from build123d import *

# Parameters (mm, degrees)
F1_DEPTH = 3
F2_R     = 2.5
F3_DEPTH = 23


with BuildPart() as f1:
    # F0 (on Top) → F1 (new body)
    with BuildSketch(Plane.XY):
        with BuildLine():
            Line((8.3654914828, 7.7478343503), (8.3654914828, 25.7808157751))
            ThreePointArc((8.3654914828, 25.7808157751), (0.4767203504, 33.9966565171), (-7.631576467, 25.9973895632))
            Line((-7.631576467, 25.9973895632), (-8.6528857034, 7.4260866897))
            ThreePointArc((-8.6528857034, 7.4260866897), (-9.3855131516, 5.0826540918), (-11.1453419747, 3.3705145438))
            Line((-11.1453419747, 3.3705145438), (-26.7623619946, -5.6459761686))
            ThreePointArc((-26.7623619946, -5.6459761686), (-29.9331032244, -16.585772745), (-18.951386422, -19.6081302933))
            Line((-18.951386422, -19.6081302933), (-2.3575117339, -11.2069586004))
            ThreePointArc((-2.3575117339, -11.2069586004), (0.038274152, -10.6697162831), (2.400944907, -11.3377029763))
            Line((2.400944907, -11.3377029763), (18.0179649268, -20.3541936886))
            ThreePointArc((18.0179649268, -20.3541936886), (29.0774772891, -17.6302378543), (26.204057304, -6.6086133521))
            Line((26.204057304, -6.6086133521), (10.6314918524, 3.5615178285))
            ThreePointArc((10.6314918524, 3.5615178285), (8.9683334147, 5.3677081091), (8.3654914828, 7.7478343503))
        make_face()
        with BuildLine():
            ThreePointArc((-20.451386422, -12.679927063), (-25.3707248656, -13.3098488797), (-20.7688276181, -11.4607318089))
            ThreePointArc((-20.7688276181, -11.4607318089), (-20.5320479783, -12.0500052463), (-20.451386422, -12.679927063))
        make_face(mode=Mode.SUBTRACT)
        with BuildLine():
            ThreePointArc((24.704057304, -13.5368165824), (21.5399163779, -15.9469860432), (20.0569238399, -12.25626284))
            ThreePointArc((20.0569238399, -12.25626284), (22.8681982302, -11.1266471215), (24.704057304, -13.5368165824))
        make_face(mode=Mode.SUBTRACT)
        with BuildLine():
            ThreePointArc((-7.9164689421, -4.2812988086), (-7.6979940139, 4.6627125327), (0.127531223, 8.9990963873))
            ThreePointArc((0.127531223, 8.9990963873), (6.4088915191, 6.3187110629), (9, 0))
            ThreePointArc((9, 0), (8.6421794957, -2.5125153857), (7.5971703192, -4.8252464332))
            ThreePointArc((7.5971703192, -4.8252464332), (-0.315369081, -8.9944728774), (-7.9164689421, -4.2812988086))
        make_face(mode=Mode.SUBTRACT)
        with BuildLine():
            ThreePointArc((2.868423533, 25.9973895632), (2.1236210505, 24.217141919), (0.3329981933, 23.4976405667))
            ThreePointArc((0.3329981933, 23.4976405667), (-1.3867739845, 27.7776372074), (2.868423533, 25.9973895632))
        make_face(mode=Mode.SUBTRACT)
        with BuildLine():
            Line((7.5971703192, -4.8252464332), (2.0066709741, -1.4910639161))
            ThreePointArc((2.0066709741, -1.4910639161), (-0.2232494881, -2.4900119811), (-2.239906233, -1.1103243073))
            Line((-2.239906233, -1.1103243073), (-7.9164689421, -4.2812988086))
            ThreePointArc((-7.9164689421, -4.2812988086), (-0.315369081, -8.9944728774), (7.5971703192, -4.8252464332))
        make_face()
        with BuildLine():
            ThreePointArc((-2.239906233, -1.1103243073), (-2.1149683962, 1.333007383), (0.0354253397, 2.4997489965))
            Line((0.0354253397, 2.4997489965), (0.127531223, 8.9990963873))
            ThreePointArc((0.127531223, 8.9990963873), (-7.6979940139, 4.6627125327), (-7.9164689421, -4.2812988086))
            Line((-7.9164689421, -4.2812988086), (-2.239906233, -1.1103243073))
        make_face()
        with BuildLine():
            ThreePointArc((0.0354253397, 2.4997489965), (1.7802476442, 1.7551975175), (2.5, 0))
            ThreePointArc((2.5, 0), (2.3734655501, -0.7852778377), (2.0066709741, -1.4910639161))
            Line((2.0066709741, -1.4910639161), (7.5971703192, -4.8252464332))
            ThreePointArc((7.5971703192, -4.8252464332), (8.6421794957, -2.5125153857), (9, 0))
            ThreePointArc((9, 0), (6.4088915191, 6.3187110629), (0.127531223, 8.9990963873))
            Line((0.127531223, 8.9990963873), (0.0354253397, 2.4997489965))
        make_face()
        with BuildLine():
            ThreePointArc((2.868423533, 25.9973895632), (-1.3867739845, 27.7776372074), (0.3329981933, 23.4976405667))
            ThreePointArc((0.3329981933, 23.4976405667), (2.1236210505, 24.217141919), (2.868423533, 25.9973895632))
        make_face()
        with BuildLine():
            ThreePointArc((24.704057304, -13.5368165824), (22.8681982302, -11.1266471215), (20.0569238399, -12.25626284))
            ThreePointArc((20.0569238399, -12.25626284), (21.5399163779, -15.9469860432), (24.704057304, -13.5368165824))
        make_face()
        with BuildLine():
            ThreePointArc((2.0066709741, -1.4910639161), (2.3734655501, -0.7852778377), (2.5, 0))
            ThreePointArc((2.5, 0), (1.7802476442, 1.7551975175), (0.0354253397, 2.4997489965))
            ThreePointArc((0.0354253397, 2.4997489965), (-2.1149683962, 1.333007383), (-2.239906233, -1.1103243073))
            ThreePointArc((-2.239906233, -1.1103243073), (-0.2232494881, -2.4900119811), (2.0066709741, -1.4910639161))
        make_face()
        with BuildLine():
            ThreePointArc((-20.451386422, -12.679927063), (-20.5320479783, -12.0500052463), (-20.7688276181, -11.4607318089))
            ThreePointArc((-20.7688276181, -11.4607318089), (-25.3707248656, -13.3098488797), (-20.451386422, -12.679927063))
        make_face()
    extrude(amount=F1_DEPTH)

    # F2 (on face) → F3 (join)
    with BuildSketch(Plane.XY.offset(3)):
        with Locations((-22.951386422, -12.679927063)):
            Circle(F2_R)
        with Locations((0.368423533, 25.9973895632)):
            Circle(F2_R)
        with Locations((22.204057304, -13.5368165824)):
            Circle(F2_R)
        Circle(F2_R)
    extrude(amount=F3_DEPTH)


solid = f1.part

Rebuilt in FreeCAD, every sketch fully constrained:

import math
import FreeCAD as App
import Part
import Sketcher
from FreeCAD import Vector
Q = App.Units.Quantity

doc = App.newDocument("Part")
body = doc.addObject("PartDesign::Body", "Body")

# Sketch on XY plane
sketch1 = doc.addObject("Sketcher::SketchObject", "Sketch")
body.addObject(sketch1)
sketch1.AttachmentSupport = (doc.XY_Plane, [""])
sketch1.MapMode = "FlatFace"
sketch1.addGeometry([
    Part.LineSegment(Vector(8.365491, 7.747834, 0), Vector(8.365491, 25.780816, 0)),  # 0
    Part.ArcOfCircle(Part.Circle(Vector(0.368424, 25.99739, 0), Vector(0, 0, 1), 8), math.radians(-1.551285), math.radians(180)),  # 1
    Part.LineSegment(Vector(-7.631576, 25.99739, 0), Vector(-8.652886, 7.426087, 0)),  # 2
    Part.ArcOfCircle(Part.Circle(Vector(-13.645342, 7.700642, 0), Vector(0, 0, 1), 5), math.radians(-60), math.radians(-3.14775)),  # 3
    Part.LineSegment(Vector(-11.145342, 3.370515, 0), Vector(-26.762362, -5.645976, 0)),  # 4
    Part.ArcOfCircle(Part.Circle(Vector(-22.951386, -12.679927, 0), Vector(0, 0, 1), 8), math.radians(118.448715), math.radians(300)),  # 5
    Part.LineSegment(Vector(-18.951386, -19.60813, 0), Vector(-2.357512, -11.206959, 0)),  # 6
    Part.ArcOfCircle(Part.Circle(Vector(-0.099055, -15.66783, 0), Vector(0, 0, 1), 5), math.radians(60), math.radians(116.85225)),  # 7
    Part.LineSegment(Vector(2.400945, -11.337703, 0), Vector(18.017965, -20.354194, 0)),  # 8
    Part.ArcOfCircle(Part.Circle(Vector(22.204057, -13.536817, 0), Vector(0, 0, 1), 8), math.radians(-121.551285), math.radians(60)),  # 9
    Part.LineSegment(Vector(26.204057, -6.608613, 0), Vector(10.631492, 3.561518, 0)),  # 10
    Part.ArcOfCircle(Part.Circle(Vector(13.365491, 7.747834, 0), Vector(0, 0, 1), 5), math.radians(180), math.radians(236.85225)),  # 11
], False)
sketch1.addConstraint([
    Sketcher.Constraint("Coincident", 0, 2, 1, 1),
    Sketcher.Constraint("Coincident", 1, 2, 2, 1),
    Sketcher.Constraint("Tangent", 2, 2, 3, 2),
    Sketcher.Constraint("Tangent", 3, 1, 4, 1),
    Sketcher.Constraint("Coincident", 4, 2, 5, 1),
    Sketcher.Constraint("Coincident", 5, 2, 6, 1),
    Sketcher.Constraint("Tangent", 6, 2, 7, 2),
    Sketcher.Constraint("Tangent", 7, 1, 8, 1),
    Sketcher.Constraint("Coincident", 8, 2, 9, 1),
    Sketcher.Constraint("Coincident", 9, 2, 10, 1),
    Sketcher.Constraint("Tangent", 10, 2, 11, 2),
    Sketcher.Constraint("Tangent", 11, 1, 0, 1),
    Sketcher.Constraint("Vertical", 0),
    Sketcher.Constraint("Equal", 1, 5),
    Sketcher.Constraint("Equal", 3, 7),
    Sketcher.Constraint("Equal", 5, 9),
    Sketcher.Constraint("Equal", 7, 11),
    Sketcher.Constraint("Equal", 2, 6),
    Sketcher.Constraint("Equal", 4, 8),
    Sketcher.Constraint("Equal", 6, 10),
    Sketcher.Constraint("Radius", 1, Q("8 mm")),
    Sketcher.Constraint("Radius", 3, Q("5 mm")),
    Sketcher.Constraint("Angle", 4, Q("-150 deg")),
    Sketcher.Constraint("Angle", 8, Q("-30 deg")),
    Sketcher.Constraint("DistanceX", 5, 3, 5, 2, Q("4 mm")),
    Sketcher.Constraint("DistanceX", 9, 3, 9, 2, Q("4 mm")),
    Sketcher.Constraint("DistanceX", 10, 2, 11, 3, Q("2.734 mm")),
    Sketcher.Constraint("DistanceY", 0, 1, 0, 2, Q("18.032981 mm")),
    Sketcher.Constraint("DistanceX", 3, 3, 9, 3, Q("35.849399 mm")),
    Sketcher.Constraint("DistanceY", 5, 2, 7, 3, Q("3.9403 mm")),
    Sketcher.Constraint("Distance", 4, Q("18.032981 mm")),
    Sketcher.Constraint("DistanceY", -1, 1, 1, 3, Q("25.99739 mm")),
    Sketcher.Constraint("DistanceX", 3, 3, -1, 1, Q("13.645342 mm")),
    Sketcher.Constraint("DistanceY", -1, 1, 3, 3, Q("7.700642 mm")),
    Sketcher.Constraint("DistanceY", 7, 3, -1, 1, Q("15.66783 mm")),
    Sketcher.Constraint("DistanceX", -1, 1, 11, 3, Q("13.365491 mm")),
])
pad1 = doc.addObject("PartDesign::Pad", "Pad")
body.addObject(pad1)
pad1.Profile = sketch1
pad1.Length = 3

# Sketch on XY plane
sketch2 = doc.addObject("Sketcher::SketchObject", "Sketch001")
body.addObject(sketch2)
sketch2.AttachmentSupport = (doc.XY_Plane, [""])
sketch2.MapMode = "FlatFace"
sketch2.AttachmentOffset = App.Placement(Vector(0, 0, 3), App.Rotation())
sketch2.addGeometry([
    Part.Circle(Vector(-22.951386, -12.679927, 0), Vector(0, 0, 1), 2.5),
    Part.Circle(Vector(0.368424, 25.99739, 0), Vector(0, 0, 1), 2.5),
    Part.Circle(Vector(22.204057, -13.536817, 0), Vector(0, 0, 1), 2.5),
    Part.Circle(Vector(0, 0, 0), Vector(0, 0, 1), 2.5),
], False)
sketch2.addConstraint([
    Sketcher.Constraint("Coincident", 3, 3, -1, 1),
    Sketcher.Constraint("Equal", 0, 1),
    Sketcher.Constraint("Equal", 1, 2),
    Sketcher.Constraint("Equal", 2, 3),
    Sketcher.Constraint("Diameter", 0, Q("5 mm")),
    Sketcher.Constraint("DistanceY", -1, 1, 1, 3, Q("25.99739 mm")),
    Sketcher.Constraint("DistanceX", 0, 3, 1, 3, Q("23.31981 mm")),
    Sketcher.Constraint("DistanceY", 2, 3, 0, 3, Q("0.85689 mm")),
    Sketcher.Constraint("DistanceX", 0, 3, -1, 1, Q("22.951386 mm")),
    Sketcher.Constraint("DistanceY", 0, 3, -1, 1, Q("12.679927 mm")),
    Sketcher.Constraint("DistanceX", -1, 1, 2, 3, Q("22.204057 mm")),
])
pad2 = doc.addObject("PartDesign::Pad", "Pad001")
body.addObject(pad2)
pad2.Profile = sketch2
pad2.Length = 23

doc.recompute()
